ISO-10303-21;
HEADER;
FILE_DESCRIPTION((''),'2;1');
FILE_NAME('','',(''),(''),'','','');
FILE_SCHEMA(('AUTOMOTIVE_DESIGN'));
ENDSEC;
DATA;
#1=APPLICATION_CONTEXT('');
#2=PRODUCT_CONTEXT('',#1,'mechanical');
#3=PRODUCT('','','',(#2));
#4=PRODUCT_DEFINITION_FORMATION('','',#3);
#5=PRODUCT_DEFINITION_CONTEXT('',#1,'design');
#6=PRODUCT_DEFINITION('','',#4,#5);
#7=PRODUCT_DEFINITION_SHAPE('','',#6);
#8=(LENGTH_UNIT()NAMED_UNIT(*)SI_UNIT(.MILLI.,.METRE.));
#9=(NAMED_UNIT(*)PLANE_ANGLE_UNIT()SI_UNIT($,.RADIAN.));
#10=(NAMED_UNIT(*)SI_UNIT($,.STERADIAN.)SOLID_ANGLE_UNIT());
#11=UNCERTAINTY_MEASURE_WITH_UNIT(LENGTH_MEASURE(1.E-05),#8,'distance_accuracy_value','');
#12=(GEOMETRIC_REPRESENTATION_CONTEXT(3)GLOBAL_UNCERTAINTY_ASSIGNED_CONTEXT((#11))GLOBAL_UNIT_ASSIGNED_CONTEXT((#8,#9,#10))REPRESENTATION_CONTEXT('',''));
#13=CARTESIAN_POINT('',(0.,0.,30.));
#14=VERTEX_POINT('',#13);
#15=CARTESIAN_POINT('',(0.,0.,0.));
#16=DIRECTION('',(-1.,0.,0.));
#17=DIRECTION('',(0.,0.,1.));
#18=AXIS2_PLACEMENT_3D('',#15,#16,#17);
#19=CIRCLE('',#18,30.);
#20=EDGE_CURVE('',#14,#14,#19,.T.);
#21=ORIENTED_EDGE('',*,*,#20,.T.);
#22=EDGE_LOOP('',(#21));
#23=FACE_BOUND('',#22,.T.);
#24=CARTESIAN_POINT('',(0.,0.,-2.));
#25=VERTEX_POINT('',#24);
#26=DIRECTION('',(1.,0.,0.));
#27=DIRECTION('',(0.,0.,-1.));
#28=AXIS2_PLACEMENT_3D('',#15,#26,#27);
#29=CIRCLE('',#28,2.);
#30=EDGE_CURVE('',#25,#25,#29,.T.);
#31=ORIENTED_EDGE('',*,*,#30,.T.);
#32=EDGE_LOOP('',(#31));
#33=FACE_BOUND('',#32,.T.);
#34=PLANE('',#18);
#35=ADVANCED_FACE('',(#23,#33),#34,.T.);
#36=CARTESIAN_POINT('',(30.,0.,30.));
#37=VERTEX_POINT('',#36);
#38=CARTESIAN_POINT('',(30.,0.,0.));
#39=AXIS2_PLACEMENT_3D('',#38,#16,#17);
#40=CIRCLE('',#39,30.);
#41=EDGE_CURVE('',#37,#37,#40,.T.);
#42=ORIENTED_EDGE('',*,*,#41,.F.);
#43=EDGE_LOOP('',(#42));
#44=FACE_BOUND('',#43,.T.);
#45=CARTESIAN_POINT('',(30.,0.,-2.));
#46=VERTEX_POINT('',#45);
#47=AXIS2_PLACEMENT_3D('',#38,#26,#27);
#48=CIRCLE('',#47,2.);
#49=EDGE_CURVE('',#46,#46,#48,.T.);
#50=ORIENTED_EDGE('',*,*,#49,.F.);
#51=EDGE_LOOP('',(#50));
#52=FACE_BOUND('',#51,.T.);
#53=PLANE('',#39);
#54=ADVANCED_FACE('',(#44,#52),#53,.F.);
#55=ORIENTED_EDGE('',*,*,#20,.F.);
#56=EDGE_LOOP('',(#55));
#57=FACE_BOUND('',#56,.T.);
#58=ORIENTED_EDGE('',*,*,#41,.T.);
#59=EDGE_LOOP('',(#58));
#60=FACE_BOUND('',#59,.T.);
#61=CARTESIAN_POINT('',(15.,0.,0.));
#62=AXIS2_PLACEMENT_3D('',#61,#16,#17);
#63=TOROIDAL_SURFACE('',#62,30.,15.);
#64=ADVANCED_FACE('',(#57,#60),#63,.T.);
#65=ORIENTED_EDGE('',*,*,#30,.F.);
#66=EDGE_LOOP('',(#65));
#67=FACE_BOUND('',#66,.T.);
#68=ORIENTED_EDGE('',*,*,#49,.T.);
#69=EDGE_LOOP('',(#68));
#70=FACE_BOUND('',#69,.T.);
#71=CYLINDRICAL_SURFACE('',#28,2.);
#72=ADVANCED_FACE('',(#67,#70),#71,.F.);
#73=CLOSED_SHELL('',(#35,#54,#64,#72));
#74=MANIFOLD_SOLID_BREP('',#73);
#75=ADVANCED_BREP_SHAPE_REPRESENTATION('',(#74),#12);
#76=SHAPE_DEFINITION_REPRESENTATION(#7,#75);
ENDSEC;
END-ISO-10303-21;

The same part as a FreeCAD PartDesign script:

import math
import FreeCAD as App
import Part
import Sketcher
Q = App.Units.Quantity

doc = App.newDocument("Part")
body = doc.addObject("PartDesign::Body", "Body")

sketch1 = body.newObject("Sketcher::SketchObject", "Sketch")
sketch1.AttachmentSupport = (doc.getObject("XY_Plane"), [""])
sketch1.MapMode = "FlatFace"
sketch1.addGeometry(Part.LineSegment(App.Vector(0, 0, 0), App.Vector(30, 0, 0)), False)
sketch1.addGeometry(Part.LineSegment(App.Vector(30, 0, 0), App.Vector(30, 30, 0)), False)
sketch1.addGeometry(Part.ArcOfCircle(Part.Circle(App.Vector(15, 30, 0), App.Vector(0, 0, 1), 15), math.radians(0), math.radians(180)), False)
sketch1.addGeometry(Part.LineSegment(App.Vector(0, 30, 0), App.Vector(0, 0, 0)), False)
sketch1.addConstraint(Sketcher.Constraint("Coincident", 0, 2, 1, 1))
sketch1.addConstraint(Sketcher.Constraint("Tangent", 1, 2, 2, 1))
sketch1.addConstraint(Sketcher.Constraint("Tangent", 2, 2, 3, 1))
sketch1.addConstraint(Sketcher.Constraint("Coincident", 3, 2, 0, 1))
sketch1.addConstraint(Sketcher.Constraint("Horizontal", 0))
sketch1.addConstraint(Sketcher.Constraint("Vertical", 1))
sketch1.addConstraint(Sketcher.Constraint("Vertical", 3))
sketch1.addConstraint(Sketcher.Constraint("Coincident", 3, 2, -1, 1))
sketch1.addConstraint(Sketcher.Constraint("Equal", 0, 1))
sketch1.addConstraint(Sketcher.Constraint("Radius", 2, Q("15 mm")))
revolution = body.newObject("PartDesign::Revolution", "Revolution")
revolution.Profile = sketch1
revolution.ReferenceAxis = (sketch1, ["H_Axis"])
revolution.Angle = 360

sketch2 = body.newObject("Sketcher::SketchObject", "Sketch001")
sketch2.AttachmentSupport = (doc.getObject("YZ_Plane"), [""])
sketch2.MapMode = "FlatFace"
sketch2.AttachmentOffset = App.Placement(App.Vector(0, 0, 30), App.Rotation())
sketch2.addGeometry(Part.Circle(App.Vector(0, 0, 0), App.Vector(0, 0, 1), 2), False)
sketch2.addConstraint(Sketcher.Constraint("Coincident", 0, 3, -1, 1))
sketch2.addConstraint(Sketcher.Constraint("Diameter", 0, Q("4 mm")))
pocket1 = body.newObject("PartDesign::Pocket", "Pocket")
pocket1.Profile = sketch2
pocket1.Type = "ThroughAll"

doc.recompute()
